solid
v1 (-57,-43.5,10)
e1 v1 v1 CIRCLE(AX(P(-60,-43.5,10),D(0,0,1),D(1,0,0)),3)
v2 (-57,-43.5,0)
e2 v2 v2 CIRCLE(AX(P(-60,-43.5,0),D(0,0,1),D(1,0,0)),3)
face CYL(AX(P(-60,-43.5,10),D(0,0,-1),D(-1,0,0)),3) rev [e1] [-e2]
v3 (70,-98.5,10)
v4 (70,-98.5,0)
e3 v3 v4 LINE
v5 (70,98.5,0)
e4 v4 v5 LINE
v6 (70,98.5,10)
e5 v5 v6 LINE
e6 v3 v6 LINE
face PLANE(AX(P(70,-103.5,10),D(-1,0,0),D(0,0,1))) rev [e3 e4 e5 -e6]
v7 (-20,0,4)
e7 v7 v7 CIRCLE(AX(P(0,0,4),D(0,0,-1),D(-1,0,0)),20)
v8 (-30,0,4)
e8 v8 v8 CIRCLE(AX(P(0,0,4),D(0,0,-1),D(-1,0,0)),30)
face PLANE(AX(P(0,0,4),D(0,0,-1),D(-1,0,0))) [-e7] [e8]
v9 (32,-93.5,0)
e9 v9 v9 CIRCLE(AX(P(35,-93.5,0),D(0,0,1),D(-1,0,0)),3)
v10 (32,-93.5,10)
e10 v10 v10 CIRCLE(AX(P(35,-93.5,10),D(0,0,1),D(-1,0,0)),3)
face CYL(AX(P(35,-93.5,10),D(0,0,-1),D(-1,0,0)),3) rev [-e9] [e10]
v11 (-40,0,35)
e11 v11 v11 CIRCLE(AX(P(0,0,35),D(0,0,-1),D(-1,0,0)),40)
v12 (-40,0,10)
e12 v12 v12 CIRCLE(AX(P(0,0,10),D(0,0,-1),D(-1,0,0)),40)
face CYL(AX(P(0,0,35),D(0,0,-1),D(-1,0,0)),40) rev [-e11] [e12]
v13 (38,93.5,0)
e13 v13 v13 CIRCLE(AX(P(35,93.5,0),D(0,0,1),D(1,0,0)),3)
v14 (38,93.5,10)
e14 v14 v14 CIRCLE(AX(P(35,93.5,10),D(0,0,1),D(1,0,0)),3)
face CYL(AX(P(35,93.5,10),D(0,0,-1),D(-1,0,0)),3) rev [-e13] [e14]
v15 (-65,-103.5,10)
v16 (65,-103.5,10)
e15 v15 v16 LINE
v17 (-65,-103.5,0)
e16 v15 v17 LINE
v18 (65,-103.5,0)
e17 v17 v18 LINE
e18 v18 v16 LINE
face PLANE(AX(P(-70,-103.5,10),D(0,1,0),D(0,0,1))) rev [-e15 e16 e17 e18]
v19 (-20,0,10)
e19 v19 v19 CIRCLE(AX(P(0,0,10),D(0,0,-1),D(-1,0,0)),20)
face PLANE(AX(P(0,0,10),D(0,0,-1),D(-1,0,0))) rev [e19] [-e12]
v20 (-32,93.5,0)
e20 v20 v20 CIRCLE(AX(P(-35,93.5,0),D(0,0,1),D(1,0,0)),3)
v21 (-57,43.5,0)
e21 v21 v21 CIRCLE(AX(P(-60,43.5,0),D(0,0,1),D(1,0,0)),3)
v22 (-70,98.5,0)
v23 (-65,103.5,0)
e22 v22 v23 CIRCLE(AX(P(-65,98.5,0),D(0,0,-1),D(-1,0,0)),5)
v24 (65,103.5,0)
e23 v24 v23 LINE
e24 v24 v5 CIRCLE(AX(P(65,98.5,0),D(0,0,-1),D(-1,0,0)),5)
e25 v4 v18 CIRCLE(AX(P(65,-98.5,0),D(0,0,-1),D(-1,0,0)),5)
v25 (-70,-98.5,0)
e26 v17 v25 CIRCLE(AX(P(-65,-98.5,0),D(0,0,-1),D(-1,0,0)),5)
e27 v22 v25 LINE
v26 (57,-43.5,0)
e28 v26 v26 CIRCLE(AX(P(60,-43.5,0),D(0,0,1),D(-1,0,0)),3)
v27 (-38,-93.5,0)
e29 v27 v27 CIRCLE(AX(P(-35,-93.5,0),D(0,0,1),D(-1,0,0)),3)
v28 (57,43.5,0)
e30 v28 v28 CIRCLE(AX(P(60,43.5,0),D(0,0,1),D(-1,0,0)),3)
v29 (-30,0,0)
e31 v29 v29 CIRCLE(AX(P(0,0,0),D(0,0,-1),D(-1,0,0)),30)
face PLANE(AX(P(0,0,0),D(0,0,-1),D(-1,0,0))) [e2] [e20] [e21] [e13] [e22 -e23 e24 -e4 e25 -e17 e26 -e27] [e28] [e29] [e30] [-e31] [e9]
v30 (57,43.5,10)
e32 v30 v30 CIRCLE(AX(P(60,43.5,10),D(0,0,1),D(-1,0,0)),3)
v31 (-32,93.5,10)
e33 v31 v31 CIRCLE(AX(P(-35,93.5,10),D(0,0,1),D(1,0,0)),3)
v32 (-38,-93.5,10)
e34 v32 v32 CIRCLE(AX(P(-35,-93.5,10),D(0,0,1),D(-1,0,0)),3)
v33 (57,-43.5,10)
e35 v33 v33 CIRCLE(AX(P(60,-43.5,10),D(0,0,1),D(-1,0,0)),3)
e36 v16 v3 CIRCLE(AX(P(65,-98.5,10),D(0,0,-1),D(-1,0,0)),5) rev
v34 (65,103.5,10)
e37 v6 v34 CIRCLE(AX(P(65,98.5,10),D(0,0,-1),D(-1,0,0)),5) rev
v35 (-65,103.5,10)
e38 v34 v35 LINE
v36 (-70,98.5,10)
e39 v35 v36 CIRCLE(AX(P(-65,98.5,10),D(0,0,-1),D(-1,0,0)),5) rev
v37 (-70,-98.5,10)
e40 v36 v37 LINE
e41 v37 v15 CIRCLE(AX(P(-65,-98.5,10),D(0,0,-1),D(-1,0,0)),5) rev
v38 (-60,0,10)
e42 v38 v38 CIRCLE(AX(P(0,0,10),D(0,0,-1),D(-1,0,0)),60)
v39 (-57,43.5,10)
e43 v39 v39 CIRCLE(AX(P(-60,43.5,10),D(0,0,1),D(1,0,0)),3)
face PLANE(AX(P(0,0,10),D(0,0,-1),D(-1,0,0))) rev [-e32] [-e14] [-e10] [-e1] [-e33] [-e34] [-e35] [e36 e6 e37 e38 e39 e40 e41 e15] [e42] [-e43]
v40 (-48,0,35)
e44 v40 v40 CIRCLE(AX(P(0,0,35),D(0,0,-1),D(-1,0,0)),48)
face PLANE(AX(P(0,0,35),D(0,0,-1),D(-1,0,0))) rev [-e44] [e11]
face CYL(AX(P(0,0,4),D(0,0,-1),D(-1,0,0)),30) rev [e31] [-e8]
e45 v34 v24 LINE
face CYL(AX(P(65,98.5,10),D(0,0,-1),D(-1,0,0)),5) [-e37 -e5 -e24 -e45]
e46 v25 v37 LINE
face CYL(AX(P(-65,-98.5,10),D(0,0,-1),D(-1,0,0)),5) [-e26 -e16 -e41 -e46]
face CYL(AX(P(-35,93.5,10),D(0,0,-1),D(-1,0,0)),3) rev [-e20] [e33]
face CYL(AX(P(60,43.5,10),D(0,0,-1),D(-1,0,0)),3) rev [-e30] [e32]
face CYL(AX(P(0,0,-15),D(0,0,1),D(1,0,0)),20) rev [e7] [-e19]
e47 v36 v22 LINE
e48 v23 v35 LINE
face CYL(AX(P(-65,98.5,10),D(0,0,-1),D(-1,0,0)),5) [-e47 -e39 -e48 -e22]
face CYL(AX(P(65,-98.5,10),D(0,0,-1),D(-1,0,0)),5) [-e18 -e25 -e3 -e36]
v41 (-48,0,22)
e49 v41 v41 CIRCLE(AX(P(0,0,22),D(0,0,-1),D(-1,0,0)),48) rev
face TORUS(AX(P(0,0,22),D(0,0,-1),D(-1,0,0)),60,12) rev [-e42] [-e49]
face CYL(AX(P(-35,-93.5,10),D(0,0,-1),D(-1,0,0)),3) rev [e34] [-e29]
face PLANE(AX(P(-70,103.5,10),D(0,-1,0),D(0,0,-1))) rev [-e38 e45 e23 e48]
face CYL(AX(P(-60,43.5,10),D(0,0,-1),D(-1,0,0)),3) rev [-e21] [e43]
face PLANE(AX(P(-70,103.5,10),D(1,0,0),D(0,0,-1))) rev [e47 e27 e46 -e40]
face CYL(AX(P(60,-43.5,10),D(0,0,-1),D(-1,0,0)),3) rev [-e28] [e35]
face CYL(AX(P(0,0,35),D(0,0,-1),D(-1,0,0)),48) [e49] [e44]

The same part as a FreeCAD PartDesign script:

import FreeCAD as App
import Part
import Sketcher
from FreeCAD import Vector
Q = App.Units.Quantity


def edges_at(feature, points):
    """Names of the edges that pass closest to the given points."""
    edges = feature.Shape.Edges
    near = lambda p: min(range(len(edges)), key=lambda i: edges[i].distToShape(Part.Vertex(*p))[0])
    return sorted({f"Edge{near(p) + 1}" for p in points})

doc = App.newDocument("Part")
params = doc.addObject("Spreadsheet::Sheet", "Params")
for row, (alias, value) in enumerate([
    ("sketch1_diameter", "6 mm"),
    ("sketch1_width", "140 mm"),
    ("sketch1_height", "207 mm"),
    ("pad1_length", "10 mm"),
    ("sketch2_diameter", "96 mm"),
    ("sketch2_diameter2", "80 mm"),
    ("pad2_length", "25 mm"),
    ("sketch3_diameter", "40 mm"),
    ("pocket1_length", "25 mm"),
    ("fillet_radius", "5 mm"),
    ("sketch4_diameter", "60 mm"),
    ("pocket2_length", "4 mm"),
    ("fillet2_radius", "12 mm"),
], start=1):
    params.set(f"A{row}", alias)
    params.set(f"B{row}", "=" + value)
    params.setAlias(f"B{row}", alias)

body = doc.addObject("PartDesign::Body", "Body")

# Sketch on XY plane
sketch1 = body.newObject("Sketcher::SketchObject", "Sketch")
sketch1.AttachmentSupport = (doc.getObject("XY_Plane"), [""])
sketch1.MapMode = "FlatFace"
sketch1.addGeometry(Part.LineSegment(Vector(-70, 103.5, 0), Vector(-70, -103.5, 0)), False)
sketch1.addGeometry(Part.LineSegment(Vector(-70, -103.5, 0), Vector(70, -103.5, 0)), False)
sketch1.addGeometry(Part.LineSegment(Vector(70, -103.5, 0), Vector(70, 103.5, 0)), False)
sketch1.addGeometry(Part.LineSegment(Vector(70, 103.5, 0), Vector(-70, 103.5, 0)), False)
sketch1.addGeometry(Part.Circle(Vector(-35, -93.5, 0), Vector(0, 0, 1), 3), False)
sketch1.addGeometry(Part.Circle(Vector(-60, -43.5, 0), Vector(0, 0, 1), 3), False)
sketch1.addGeometry(Part.Circle(Vector(35, -93.5, 0), Vector(0, 0, 1), 3), False)
sketch1.addGeometry(Part.Circle(Vector(60, -43.5, 0), Vector(0, 0, 1), 3), False)
sketch1.addGeometry(Part.Circle(Vector(-60, 43.5, 0), Vector(0, 0, 1), 3), False)
sketch1.addGeometry(Part.Circle(Vector(-35, 93.5, 0), Vector(0, 0, 1), 3), False)
sketch1.addGeometry(Part.Circle(Vector(60, 43.5, 0), Vector(0, 0, 1), 3), False)
sketch1.addGeometry(Part.Circle(Vector(35, 93.5, 0), Vector(0, 0, 1), 3), False)
sketch1.addConstraint(Sketcher.Constraint("Coincident", 0, 2, 1, 1))
sketch1.addConstraint(Sketcher.Constraint("Coincident", 1, 2, 2, 1))
sketch1.addConstraint(Sketcher.Constraint("Coincident", 2, 2, 3, 1))
sketch1.addConstraint(Sketcher.Constraint("Coincident", 3, 2, 0, 1))
sketch1.addConstraint(Sketcher.Constraint("Vertical", 0))
sketch1.addConstraint(Sketcher.Constraint("Horizontal", 1))
sketch1.addConstraint(Sketcher.Constraint("Vertical", 2))
sketch1.addConstraint(Sketcher.Constraint("Horizontal", 3))
sketch1.addConstraint(Sketcher.Constraint("Equal", 4, 5))
sketch1.addConstraint(Sketcher.Constraint("Equal", 5, 6))
sketch1.addConstraint(Sketcher.Constraint("Equal", 6, 7))
sketch1.addConstraint(Sketcher.Constraint("Equal", 7, 8))
sketch1.addConstraint(Sketcher.Constraint("Equal", 8, 9))
sketch1.addConstraint(Sketcher.Constraint("Equal", 9, 10))
sketch1.addConstraint(Sketcher.Constraint("Equal", 10, 11))
sketch1.addConstraint(Sketcher.Constraint("Symmetric", 7, 3, 8, 3, -1, 1))
sketch1.addConstraint(Sketcher.Constraint("Symmetric", 6, 3, 9, 3, -1, 1))
sketch1.addConstraint(Sketcher.Constraint("Symmetric", 5, 3, 10, 3, -1, 1))
sketch1.addConstraint(Sketcher.Constraint("Symmetric", 4, 3, 11, 3, -1, 1))
sketch1.addConstraint(Sketcher.Constraint("Symmetric", 0, 2, 2, 2, -1, 1))
sketch1.addConstraint(Sketcher.Constraint("Symmetric", 4, 3, 6, 3, -2))
sketch1.addConstraint(Sketcher.Constraint("Symmetric", 5, 3, 7, 3, -2))
sketch1.addConstraint(Sketcher.Constraint("Diameter", 4, Q("6 mm")))
sketch1.addConstraint(Sketcher.Constraint("DistanceX", 1, 1, 1, 2, Q("140 mm")))
sketch1.addConstraint(Sketcher.Constraint("DistanceY", 0, 2, 0, 1, Q("207 mm")))
sketch1.addConstraint(Sketcher.Constraint("DistanceX", 4, 3, -1, 1, Q("35 mm")))
sketch1.addConstraint(Sketcher.Constraint("DistanceX", 5, 3, -1, 1, Q("60 mm")))
sketch1.addConstraint(Sketcher.Constraint("DistanceY", 4, 3, 5, 3, Q("50 mm")))
sketch1.addConstraint(Sketcher.Constraint("DistanceY", 5, 3, 8, 3, Q("87 mm")))
sketch1.setExpression("Constraints[22]", "Params.sketch1_diameter")
sketch1.setExpression("Constraints[23]", "Params.sketch1_width")
sketch1.setExpression("Constraints[24]", "Params.sketch1_height")
pad1 = body.newObject("PartDesign::Pad", "Pad")
pad1.Profile = sketch1
pad1.setExpression("Length", "Params.pad1_length")

# Sketch on XY plane
sketch2 = body.newObject("Sketcher::SketchObject", "Sketch001")
sketch2.AttachmentSupport = (doc.getObject("XY_Plane"), [""])
sketch2.MapMode = "FlatFace"
sketch2.AttachmentOffset = App.Placement(Vector(0, 0, 10), App.Rotation())
sketch2.addGeometry(Part.Circle(Vector(0, 0, 0), Vector(0, 0, 1), 48), False)
sketch2.addGeometry(Part.Circle(Vector(0, 0, 0), Vector(0, 0, 1), 40), False)
sketch2.addConstraint(Sketcher.Constraint("Coincident", 0, 3, -1, 1))
sketch2.addConstraint(Sketcher.Constraint("Coincident", 1, 3, -1, 1))
sketch2.addConstraint(Sketcher.Constraint("Diameter", 0, Q("96 mm")))
sketch2.addConstraint(Sketcher.Constraint("Diameter", 1, Q("80 mm")))
sketch2.setExpression("Constraints[2]", "Params.sketch2_diameter")
sketch2.setExpression("Constraints[3]", "Params.sketch2_diameter2")
pad2 = body.newObject("PartDesign::Pad", "Pad001")
pad2.Profile = sketch2
pad2.setExpression("Length", "Params.pad2_length")

# Sketch on XY plane
sketch3 = body.newObject("Sketcher::SketchObject", "Sketch002")
sketch3.AttachmentSupport = (doc.getObject("XY_Plane"), [""])
sketch3.MapMode = "FlatFace"
sketch3.AttachmentOffset = App.Placement(Vector(0, 0, 10), App.Rotation())
sketch3.addGeometry(Part.Circle(Vector(0, 0, 0), Vector(0, 0, 1), 20), False)
sketch3.addConstraint(Sketcher.Constraint("Coincident", 0, 3, -1, 1))
sketch3.addConstraint(Sketcher.Constraint("Diameter", 0, Q("40 mm")))
sketch3.setExpression("Constraints[1]", "Params.sketch3_diameter")
pocket1 = body.newObject("PartDesign::Pocket", "Pocket")
pocket1.Profile = sketch3
pocket1.setExpression("Length", "Params.pocket1_length")
doc.recompute()

fillet = body.newObject("PartDesign::Fillet", "Fillet")
fillet.Base = (pocket1, edges_at(pocket1, [
    (70, -103.5, 5),
    (-70, -103.5, 5),
    (-70, 103.5, 5),
    (70, 103.5, 5),
]))
fillet.setExpression("Radius", "Params.fillet_radius")

# Sketch on XY plane
sketch4 = body.newObject("Sketcher::SketchObject", "Sketch003")
sketch4.AttachmentSupport = (doc.getObject("XY_Plane"), [""])
sketch4.MapMode = "FlatFace"
sketch4.addGeometry(Part.Circle(Vector(0, 0, 0), Vector(0, 0, 1), 30), False)
sketch4.addConstraint(Sketcher.Constraint("Coincident", 0, 3, -1, 1))
sketch4.addConstraint(Sketcher.Constraint("Diameter", 0, Q("60 mm")))
sketch4.setExpression("Constraints[1]", "Params.sketch4_diameter")
pocket2 = body.newObject("PartDesign::Pocket", "Pocket001")
pocket2.Profile = sketch4
pocket2.setExpression("Length", "Params.pocket2_length")
pocket2.Reversed = True
doc.recompute()

fillet2 = body.newObject("PartDesign::Fillet", "Fillet001")
fillet2.Base = (pocket2, edges_at(pocket2, [(48, 0, 10)]))
fillet2.setExpression("Radius", "Params.fillet2_radius")

doc.recompute()
